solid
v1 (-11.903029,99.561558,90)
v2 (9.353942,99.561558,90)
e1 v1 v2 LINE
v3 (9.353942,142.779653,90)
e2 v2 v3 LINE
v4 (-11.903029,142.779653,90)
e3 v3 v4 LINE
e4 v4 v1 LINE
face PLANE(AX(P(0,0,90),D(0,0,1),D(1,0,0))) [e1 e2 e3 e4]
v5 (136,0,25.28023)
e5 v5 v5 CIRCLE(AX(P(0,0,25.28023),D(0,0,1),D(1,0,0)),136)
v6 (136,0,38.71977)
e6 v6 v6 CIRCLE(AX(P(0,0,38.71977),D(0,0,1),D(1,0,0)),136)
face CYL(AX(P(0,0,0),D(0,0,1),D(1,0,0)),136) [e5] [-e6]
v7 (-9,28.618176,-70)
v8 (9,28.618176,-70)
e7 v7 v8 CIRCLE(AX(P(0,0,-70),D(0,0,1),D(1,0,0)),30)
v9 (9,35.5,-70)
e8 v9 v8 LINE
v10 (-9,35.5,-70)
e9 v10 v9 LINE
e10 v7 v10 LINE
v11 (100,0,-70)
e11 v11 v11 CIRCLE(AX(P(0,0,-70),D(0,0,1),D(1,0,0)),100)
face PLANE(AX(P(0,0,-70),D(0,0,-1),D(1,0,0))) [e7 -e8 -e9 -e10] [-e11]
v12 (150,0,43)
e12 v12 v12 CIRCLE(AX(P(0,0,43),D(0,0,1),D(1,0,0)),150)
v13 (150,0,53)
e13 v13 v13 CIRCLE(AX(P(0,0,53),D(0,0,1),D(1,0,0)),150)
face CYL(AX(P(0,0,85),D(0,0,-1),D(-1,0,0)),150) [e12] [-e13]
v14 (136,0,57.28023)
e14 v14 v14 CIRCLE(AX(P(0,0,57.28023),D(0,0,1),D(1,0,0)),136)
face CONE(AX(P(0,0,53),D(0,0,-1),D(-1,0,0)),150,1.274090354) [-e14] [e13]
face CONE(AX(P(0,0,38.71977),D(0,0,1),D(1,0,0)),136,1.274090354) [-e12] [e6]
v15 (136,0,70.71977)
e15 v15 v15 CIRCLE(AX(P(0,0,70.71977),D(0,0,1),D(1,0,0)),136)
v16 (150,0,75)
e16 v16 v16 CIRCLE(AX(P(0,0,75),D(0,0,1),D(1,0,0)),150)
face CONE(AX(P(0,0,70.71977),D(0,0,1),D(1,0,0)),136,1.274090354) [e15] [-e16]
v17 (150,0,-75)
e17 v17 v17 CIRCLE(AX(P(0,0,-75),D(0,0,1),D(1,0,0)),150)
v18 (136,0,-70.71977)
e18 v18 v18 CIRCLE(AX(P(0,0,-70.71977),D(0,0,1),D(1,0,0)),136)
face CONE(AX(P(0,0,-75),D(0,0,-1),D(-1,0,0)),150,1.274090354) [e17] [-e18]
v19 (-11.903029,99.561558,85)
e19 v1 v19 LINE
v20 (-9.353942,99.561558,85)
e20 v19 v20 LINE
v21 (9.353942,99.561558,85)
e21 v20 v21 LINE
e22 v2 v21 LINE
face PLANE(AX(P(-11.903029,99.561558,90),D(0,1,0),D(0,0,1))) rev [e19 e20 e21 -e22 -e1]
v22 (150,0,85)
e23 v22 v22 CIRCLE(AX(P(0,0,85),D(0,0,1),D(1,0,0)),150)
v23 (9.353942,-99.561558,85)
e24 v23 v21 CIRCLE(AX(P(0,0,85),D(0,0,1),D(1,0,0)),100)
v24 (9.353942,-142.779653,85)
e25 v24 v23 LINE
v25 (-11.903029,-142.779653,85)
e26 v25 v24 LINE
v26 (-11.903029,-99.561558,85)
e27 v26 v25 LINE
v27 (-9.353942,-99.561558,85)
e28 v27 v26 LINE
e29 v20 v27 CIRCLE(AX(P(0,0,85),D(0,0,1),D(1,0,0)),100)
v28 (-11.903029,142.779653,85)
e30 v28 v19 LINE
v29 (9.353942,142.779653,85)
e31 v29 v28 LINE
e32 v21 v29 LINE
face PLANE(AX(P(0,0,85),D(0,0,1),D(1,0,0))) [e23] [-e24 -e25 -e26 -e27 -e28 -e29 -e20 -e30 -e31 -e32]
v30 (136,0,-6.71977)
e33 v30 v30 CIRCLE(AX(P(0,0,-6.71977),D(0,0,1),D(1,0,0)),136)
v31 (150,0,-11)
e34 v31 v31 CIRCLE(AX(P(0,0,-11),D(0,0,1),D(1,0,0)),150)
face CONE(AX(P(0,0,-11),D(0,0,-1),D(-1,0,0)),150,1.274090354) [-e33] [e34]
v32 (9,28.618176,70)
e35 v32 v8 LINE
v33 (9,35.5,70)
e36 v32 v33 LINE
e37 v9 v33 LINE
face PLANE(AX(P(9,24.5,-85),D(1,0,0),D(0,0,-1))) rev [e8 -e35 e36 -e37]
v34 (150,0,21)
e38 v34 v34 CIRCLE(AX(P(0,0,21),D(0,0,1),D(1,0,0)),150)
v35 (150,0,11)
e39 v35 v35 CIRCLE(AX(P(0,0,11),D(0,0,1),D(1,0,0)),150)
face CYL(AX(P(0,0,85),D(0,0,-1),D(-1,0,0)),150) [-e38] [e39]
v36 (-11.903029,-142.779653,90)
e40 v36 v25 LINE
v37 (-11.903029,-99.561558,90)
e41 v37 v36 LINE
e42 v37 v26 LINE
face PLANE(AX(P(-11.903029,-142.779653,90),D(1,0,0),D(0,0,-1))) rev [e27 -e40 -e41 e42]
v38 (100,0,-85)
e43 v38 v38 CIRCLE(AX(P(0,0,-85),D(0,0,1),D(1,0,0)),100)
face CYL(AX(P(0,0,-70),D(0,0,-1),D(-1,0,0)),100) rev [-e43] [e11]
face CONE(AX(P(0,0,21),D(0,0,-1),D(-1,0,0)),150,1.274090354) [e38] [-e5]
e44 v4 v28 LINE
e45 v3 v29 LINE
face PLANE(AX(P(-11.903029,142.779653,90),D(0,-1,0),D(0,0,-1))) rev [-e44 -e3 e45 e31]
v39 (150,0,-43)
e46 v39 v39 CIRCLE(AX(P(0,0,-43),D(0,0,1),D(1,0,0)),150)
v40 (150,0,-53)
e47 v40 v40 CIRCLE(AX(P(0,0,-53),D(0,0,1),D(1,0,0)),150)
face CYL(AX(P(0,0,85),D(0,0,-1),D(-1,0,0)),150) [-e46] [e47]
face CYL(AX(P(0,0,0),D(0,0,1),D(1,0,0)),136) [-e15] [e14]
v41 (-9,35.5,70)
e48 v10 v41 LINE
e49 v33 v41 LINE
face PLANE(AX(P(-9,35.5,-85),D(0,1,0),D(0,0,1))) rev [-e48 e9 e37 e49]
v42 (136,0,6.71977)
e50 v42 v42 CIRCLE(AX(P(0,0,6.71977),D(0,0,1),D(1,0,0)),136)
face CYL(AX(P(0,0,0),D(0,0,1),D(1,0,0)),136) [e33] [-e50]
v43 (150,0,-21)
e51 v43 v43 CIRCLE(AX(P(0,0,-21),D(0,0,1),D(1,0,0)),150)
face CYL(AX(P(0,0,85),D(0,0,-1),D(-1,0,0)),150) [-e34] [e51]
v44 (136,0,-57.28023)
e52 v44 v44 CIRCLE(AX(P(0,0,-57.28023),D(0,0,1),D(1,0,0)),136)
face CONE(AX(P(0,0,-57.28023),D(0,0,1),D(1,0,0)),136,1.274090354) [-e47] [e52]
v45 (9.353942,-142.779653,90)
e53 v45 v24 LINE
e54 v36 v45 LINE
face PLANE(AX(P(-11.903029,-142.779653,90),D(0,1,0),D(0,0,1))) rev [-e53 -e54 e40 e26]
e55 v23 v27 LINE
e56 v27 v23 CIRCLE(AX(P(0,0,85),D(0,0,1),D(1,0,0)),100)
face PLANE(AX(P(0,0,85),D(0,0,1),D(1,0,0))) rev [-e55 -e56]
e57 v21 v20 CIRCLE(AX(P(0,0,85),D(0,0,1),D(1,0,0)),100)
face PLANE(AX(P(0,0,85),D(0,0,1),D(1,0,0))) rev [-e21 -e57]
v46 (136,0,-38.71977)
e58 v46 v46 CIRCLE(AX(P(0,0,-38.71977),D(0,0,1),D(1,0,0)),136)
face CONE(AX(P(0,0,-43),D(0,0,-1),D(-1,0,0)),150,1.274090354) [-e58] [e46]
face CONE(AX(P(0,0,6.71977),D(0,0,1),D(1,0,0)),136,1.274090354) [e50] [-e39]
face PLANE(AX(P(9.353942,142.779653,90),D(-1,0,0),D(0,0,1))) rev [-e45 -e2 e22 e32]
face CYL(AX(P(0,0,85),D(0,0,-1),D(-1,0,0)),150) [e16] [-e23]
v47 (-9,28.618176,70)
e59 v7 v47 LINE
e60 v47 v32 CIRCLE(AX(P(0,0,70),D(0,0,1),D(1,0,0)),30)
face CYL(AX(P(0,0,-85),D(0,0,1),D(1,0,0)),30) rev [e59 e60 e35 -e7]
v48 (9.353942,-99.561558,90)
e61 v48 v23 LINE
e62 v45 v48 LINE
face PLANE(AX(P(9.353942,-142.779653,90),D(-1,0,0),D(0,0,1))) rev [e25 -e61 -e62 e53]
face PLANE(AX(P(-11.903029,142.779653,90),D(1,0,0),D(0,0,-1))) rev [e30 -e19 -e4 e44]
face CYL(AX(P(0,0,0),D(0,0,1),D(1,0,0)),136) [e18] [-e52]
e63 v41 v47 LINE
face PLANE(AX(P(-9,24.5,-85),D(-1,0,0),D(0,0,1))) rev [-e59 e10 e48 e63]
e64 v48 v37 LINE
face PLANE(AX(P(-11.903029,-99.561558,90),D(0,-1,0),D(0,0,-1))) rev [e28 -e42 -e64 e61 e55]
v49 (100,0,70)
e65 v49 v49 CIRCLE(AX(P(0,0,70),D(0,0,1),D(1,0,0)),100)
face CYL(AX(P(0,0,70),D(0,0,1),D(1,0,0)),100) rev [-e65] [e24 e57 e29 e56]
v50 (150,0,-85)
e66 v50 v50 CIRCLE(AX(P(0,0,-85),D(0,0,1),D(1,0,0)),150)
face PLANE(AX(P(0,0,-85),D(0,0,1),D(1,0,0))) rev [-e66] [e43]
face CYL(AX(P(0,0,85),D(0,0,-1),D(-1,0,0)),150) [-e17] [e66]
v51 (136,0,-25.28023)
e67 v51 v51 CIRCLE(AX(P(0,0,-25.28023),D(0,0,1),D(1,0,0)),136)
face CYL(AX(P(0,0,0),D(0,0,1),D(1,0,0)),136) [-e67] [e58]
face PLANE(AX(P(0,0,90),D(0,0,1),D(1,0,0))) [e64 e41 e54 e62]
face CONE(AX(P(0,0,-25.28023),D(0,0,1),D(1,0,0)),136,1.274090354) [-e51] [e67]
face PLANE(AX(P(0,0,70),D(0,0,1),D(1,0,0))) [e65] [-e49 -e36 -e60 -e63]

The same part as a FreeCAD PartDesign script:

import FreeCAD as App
import Part
import Sketcher
Q = App.Units.Quantity


def add_polygon(sketch, points):
    """Adds a closed chain of lines whose ends are joined by coincident constraints."""
    first, n = sketch.GeometryCount, len(points)
    for a, b in zip(points, points[1:] + points[:1]):
        sketch.addGeometry(Part.LineSegment(App.Vector(*a, 0), App.Vector(*b, 0)), False)
    for i in range(n):
        sketch.addConstraint(Sketcher.Constraint("Coincident", first + i, 2, first + (i + 1) % n, 1))

doc = App.newDocument("Part")
body = doc.addObject("PartDesign::Body", "Body")

# Sketch on XY plane
sketch1 = doc.addObject("Sketcher::SketchObject", "Sketch")
body.addObject(sketch1)
sketch1.AttachmentSupport = (doc.XY_Plane, [""])
sketch1.MapMode = "FlatFace"
sketch1.addGeometry(Part.Circle(App.Vector(0, 0, 0), App.Vector(0, 0, 1), 150), False)
sketch1.addConstraint(Sketcher.Constraint("Coincident", 0, 3, -1, 1))
sketch1.addConstraint(Sketcher.Constraint("Diameter", 0, Q("300 mm")))
pad1 = doc.addObject("PartDesign::Pad", "Pad")
body.addObject(pad1)
pad1.Profile = sketch1
pad1.Length = 170
pad1.Midplane = True

# Sketch on XY plane
sketch2 = doc.addObject("Sketcher::SketchObject", "Sketch001")
body.addObject(sketch2)
sketch2.AttachmentSupport = (doc.XY_Plane, [""])
sketch2.MapMode = "FlatFace"
sketch2.AttachmentOffset = App.Placement(App.Vector(0, 0, 85), App.Rotation())
sketch2.addGeometry(Part.Circle(App.Vector(0, 0, 0), App.Vector(0, 0, 1), 30), False)
sketch2.addConstraint(Sketcher.Constraint("Coincident", 0, 3, -1, 1))
sketch2.addConstraint(Sketcher.Constraint("Diameter", 0, Q("60 mm")))
pocket1 = doc.addObject("PartDesign::Pocket", "Pocket")
body.addObject(pocket1)
pocket1.Profile = sketch2
pocket1.Type = "ThroughAll"

# Sketch on XY plane
sketch3 = doc.addObject("Sketcher::SketchObject", "Sketch002")
body.addObject(sketch3)
sketch3.AttachmentSupport = (doc.XY_Plane, [""])
sketch3.MapMode = "FlatFace"
sketch3.AttachmentOffset = App.Placement(App.Vector(0, 0, 85), App.Rotation())
sketch3.addGeometry(Part.Circle(App.Vector(0, 0, 0), App.Vector(0, 0, 1), 100), False)
sketch3.addGeometry(Part.Circle(App.Vector(0, 0, 0), App.Vector(0, 0, 1), 30), False)
sketch3.addConstraint(Sketcher.Constraint("Coincident", 0, 3, -1, 1))
sketch3.addConstraint(Sketcher.Constraint("Coincident", 1, 3, -1, 1))
sketch3.addConstraint(Sketcher.Constraint("Diameter", 0, Q("200 mm")))
sketch3.addConstraint(Sketcher.Constraint("Diameter", 1, Q("60 mm")))
pocket2 = doc.addObject("PartDesign::Pocket", "Pocket001")
body.addObject(pocket2)
pocket2.Profile = sketch3
pocket2.Length = 15
doc.recompute()

mirrored = doc.addObject("PartDesign::Mirrored", "Mirrored")
body.addObject(mirrored)
mirrored.Originals = [pocket2]
mirrored.MirrorPlane = (doc.XY_Plane, [""])
body.Tip = mirrored

# Sketch on XY plane
sketch4 = doc.addObject("Sketcher::SketchObject", "Sketch003")
body.addObject(sketch4)
sketch4.AttachmentSupport = (doc.XY_Plane, [""])
sketch4.MapMode = "FlatFace"
sketch4.AttachmentOffset = App.Placement(App.Vector(0, 0, 70), App.Rotation())
add_polygon(sketch4, [(-9, 36), (-9, 24), (9, 24), (9, 36)])  # lines 0-3
sketch4.addConstraint(Sketcher.Constraint("Vertical", 0))
sketch4.addConstraint(Sketcher.Constraint("Horizontal", 1))
sketch4.addConstraint(Sketcher.Constraint("Vertical", 2))
sketch4.addConstraint(Sketcher.Constraint("Horizontal", 3))
sketch4.addConstraint(Sketcher.Constraint("DistanceX", 1, 1, 1, 2, Q("18 mm")))
sketch4.addConstraint(Sketcher.Constraint("DistanceY", 0, 2, 0, 1, Q("11 mm")))
sketch4.addConstraint(Sketcher.Constraint("DistanceX", 0, 2, -1, 1, Q("9 mm")))
sketch4.addConstraint(Sketcher.Constraint("DistanceY", -1, 1, 0, 2, Q("24.5 mm")))
pocket3 = doc.addObject("PartDesign::Pocket", "Pocket002")
body.addObject(pocket3)
pocket3.Profile = sketch4
pocket3.Type = "ThroughAll"

# Sketch on XZ plane
sketch5 = doc.addObject("Sketcher::SketchObject", "Sketch004")
body.addObject(sketch5)
sketch5.AttachmentSupport = (doc.XZ_Plane, [""])
sketch5.MapMode = "FlatFace"
add_polygon(sketch5, [(150, -75), (136, -71), (136, -57), (150, -53)])  # lines 0-3
add_polygon(sketch5, [(150, -21), (150, -43), (136, -39), (136, -25)])  # lines 4-7
add_polygon(sketch5, [(150, -11), (136, -7), (136, 7), (150, 11)])  # lines 8-11
add_polygon(sketch5, [(150, 43), (150, 21), (136, 25), (136, 39)])  # lines 12-15
add_polygon(sketch5, [(150, 53), (136, 57), (136, 71), (150, 75)])  # lines 16-19
sketch5.addConstraint(Sketcher.Constraint("Vertical", 1))
sketch5.addConstraint(Sketcher.Constraint("Vertical", 3))
sketch5.addConstraint(Sketcher.Constraint("Vertical", 4))
sketch5.addConstraint(Sketcher.Constraint("Vertical", 6))
sketch5.addConstraint(Sketcher.Constraint("Vertical", 9))
sketch5.addConstraint(Sketcher.Constraint("Vertical", 11))
sketch5.addConstraint(Sketcher.Constraint("Vertical", 12))
sketch5.addConstraint(Sketcher.Constraint("Vertical", 14))
sketch5.addConstraint(Sketcher.Constraint("Vertical", 17))
sketch5.addConstraint(Sketcher.Constraint("Vertical", 19))
sketch5.addConstraint(Sketcher.Constraint("Symmetric", 7, 2, 12, 2, -1))
sketch5.addConstraint(Sketcher.Constraint("Symmetric", 6, 2, 13, 2, -1))
sketch5.addConstraint(Sketcher.Constraint("Symmetric", 1, 2, 16, 2, -1))
sketch5.addConstraint(Sketcher.Constraint("Symmetric", 3, 2, 18, 2, -1))
sketch5.addConstraint(Sketcher.Constraint("Parallel", 0, 5))
sketch5.addConstraint(Sketcher.Constraint("Parallel", 2, 7))
sketch5.addConstraint(Sketcher.Constraint("Parallel", 5, 8))
sketch5.addConstraint(Sketcher.Constraint("Parallel", 7, 10))
sketch5.addConstraint(Sketcher.Constraint("Parallel", 8, 13))
sketch5.addConstraint(Sketcher.Constraint("Parallel", 10, 15))
sketch5.addConstraint(Sketcher.Constraint("Parallel", 13, 16))
sketch5.addConstraint(Sketcher.Constraint("Parallel", 15, 18))
sketch5.addConstraint(Sketcher.Constraint("Vertical", 3, 2, 4, 2))
sketch5.addConstraint(Sketcher.Constraint("Vertical", 1, 2, 5, 2))
sketch5.addConstraint(Sketcher.Constraint("Vertical", 6, 2, 8, 2))
sketch5.addConstraint(Sketcher.Constraint("Vertical", 7, 2, 10, 2))
sketch5.addConstraint(Sketcher.Constraint("Equal", 3, 4))
sketch5.addConstraint(Sketcher.Constraint("Equal", 6, 9))
sketch5.addConstraint(Sketcher.Constraint("Equal", 11, 12))
sketch5.addConstraint(Sketcher.Constraint("DistanceY", 3, 2, 3, 1, Q("22 mm")))
sketch5.addConstraint(Sketcher.Constraint("Angle", 0, Q("163 deg")))
sketch5.addConstraint(Sketcher.Constraint("DistanceX", -1, 1, 0, 2, Q("136 mm")))
sketch5.addConstraint(Sketcher.Constraint("DistanceX", -1, 1, 2, 2, Q("150 mm")))
sketch5.addConstraint(Sketcher.Constraint("DistanceY", 2, 2, -1, 1, Q("53 mm")))
sketch5.addConstraint(Sketcher.Constraint("DistanceY", 4, 2, -1, 1, Q("43 mm")))
sketch5.addConstraint(Sketcher.Constraint("DistanceY", -1, 1, 10, 2, Q("11 mm")))
groove = doc.addObject("PartDesign::Groove", "Groove")
body.addObject(groove)
groove.Profile = sketch5
groove.ReferenceAxis = (sketch5, ["V_Axis"])
groove.Angle = 360

# Sketch on XY plane
sketch6 = doc.addObject("Sketcher::SketchObject", "Sketch005")
body.addObject(sketch6)
sketch6.AttachmentSupport = (doc.XY_Plane, [""])
sketch6.MapMode = "FlatFace"
sketch6.AttachmentOffset = App.Placement(App.Vector(0, 0, 85), App.Rotation())
add_polygon(sketch6, [(-12, 143), (-12, 100), (9, 100), (9, 143)])  # lines 0-3
add_polygon(sketch6, [(-12, -100), (-12, -143), (9, -143), (9, -100)])  # lines 4-7
sketch6.addConstraint(Sketcher.Constraint("Vertical", 0))
sketch6.addConstraint(Sketcher.Constraint("Horizontal", 1))
sketch6.addConstraint(Sketcher.Constraint("Vertical", 2))
sketch6.addConstraint(Sketcher.Constraint("Horizontal", 3))
sketch6.addConstraint(Sketcher.Constraint("Vertical", 4))
sketch6.addConstraint(Sketcher.Constraint("Horizontal", 5))
sketch6.addConstraint(Sketcher.Constraint("Vertical", 6))
sketch6.addConstraint(Sketcher.Constraint("Horizontal", 7))
sketch6.addConstraint(Sketcher.Constraint("Symmetric", 3, 2, 4, 2, -1))
sketch6.addConstraint(Sketcher.Constraint("Symmetric", 1, 2, 6, 2, -1))
sketch6.addConstraint(Sketcher.Constraint("DistanceX", 1, 1, 1, 2, Q("21.256972 mm")))
sketch6.addConstraint(Sketcher.Constraint("DistanceY", 0, 2, 0, 1, Q("43.218095 mm")))
sketch6.addConstraint(Sketcher.Constraint("DistanceX", 0, 2, -1, 1, Q("11.903029 mm")))
sketch6.addConstraint(Sketcher.Constraint("DistanceY", 4, 2, 0, 2, Q("242.341211 mm")))
pad2 = doc.addObject("PartDesign::Pad", "Pad001")
body.addObject(pad2)
pad2.Profile = sketch6
pad2.Length = 5

doc.recompute()
